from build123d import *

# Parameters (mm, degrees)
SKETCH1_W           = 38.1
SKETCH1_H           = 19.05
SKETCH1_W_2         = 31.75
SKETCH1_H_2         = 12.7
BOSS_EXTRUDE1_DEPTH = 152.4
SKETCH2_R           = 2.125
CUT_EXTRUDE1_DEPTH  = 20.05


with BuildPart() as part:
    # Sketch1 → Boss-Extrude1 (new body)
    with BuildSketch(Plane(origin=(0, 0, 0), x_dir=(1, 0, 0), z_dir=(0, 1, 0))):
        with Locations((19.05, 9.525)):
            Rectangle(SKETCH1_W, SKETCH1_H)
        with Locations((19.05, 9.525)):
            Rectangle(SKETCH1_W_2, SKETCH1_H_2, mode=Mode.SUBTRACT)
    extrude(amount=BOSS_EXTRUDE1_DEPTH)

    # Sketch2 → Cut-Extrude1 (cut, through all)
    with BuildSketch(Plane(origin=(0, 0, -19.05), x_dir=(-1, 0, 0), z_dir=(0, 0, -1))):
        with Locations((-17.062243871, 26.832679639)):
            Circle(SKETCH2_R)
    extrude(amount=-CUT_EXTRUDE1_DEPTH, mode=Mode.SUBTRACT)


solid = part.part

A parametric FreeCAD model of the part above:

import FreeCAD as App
import Part
import Sketcher

V = App.Vector
Q = App.Units.Quantity


def add_polygon(sketch, points):
    """Adds a closed chain of lines whose ends are joined by coincident constraints."""
    first, n = sketch.GeometryCount, len(points)
    for a, b in zip(points, points[1:] + points[:1]):
        sketch.addGeometry(Part.LineSegment(App.Vector(*a, 0), App.Vector(*b, 0)), False)
    for i in range(n):
        sketch.addConstraint(Sketcher.Constraint("Coincident", first + i, 2, first + (i + 1) % n, 1))

doc = App.newDocument("Part")
body = doc.addObject("PartDesign::Body", "Body")

sketch1 = doc.addObject("Sketcher::SketchObject", "Sketch")
body.addObject(sketch1)
sketch1.AttachmentSupport = (doc.XZ_Plane, [""])
sketch1.MapMode = "FlatFace"
add_polygon(sketch1, [(0, -19.05), (0, 0), (38.1, 0), (38.1, -19.05)])
add_polygon(sketch1, [(34.925, -3.175), (3.175, -3.175), (3.175, -15.875), (34.925, -15.875)])
sketch1.addConstraint(Sketcher.Constraint("Vertical", 0))
sketch1.addConstraint(Sketcher.Constraint("Horizontal", 1))
sketch1.addConstraint(Sketcher.Constraint("Vertical", 2))
sketch1.addConstraint(Sketcher.Constraint("Horizontal", 3))
sketch1.addConstraint(Sketcher.Constraint("Horizontal", 4))
sketch1.addConstraint(Sketcher.Constraint("Vertical", 5))
sketch1.addConstraint(Sketcher.Constraint("Horizontal", 6))
sketch1.addConstraint(Sketcher.Constraint("Vertical", 7))
sketch1.addConstraint(Sketcher.Constraint("Coincident", 0, 2, -1, 1))
sketch1.addConstraint(Sketcher.Constraint("DistanceX", 1, 1, 1, 2, Q("1.5 in")))
sketch1.addConstraint(Sketcher.Constraint("DistanceY", 5, 2, 5, 1, Q("0.5 in")))
sketch1.addConstraint(Sketcher.Constraint("DistanceX", 4, 2, 4, 1, Q("1.25 in")))
sketch1.addConstraint(Sketcher.Constraint("DistanceY", 0, 1, 0, 2, Q("0.75 in")))
sketch1.addConstraint(Sketcher.Constraint("DistanceX", -1, 1, 4, 2, Q("0.125 in")))
sketch1.addConstraint(Sketcher.Constraint("DistanceY", 4, 2, -1, 1, Q("0.125 in")))
pad1 = doc.addObject("PartDesign::Pad", "Pad")
body.addObject(pad1)
pad1.Profile = sketch1
pad1.Length = Q("6 in")
pad1.Reversed = True

sketch2 = doc.addObject("Sketcher::SketchObject", "Sketch001")
body.addObject(sketch2)
sketch2.AttachmentSupport = (doc.XY_Plane, [""])
sketch2.MapMode = "FlatFace"
sketch2.AttachmentOffset = App.Placement(V(0, 0, -0.75 * 25.4), App.Rotation())
sketch2.addGeometry(Part.Circle(V(17.062244, 26.83268, 0), V(0, 0, 1), 2.125), False)
sketch2.addConstraint(Sketcher.Constraint("Diameter", 0, 4.25))
sketch2.addConstraint(Sketcher.Constraint("DistanceY", -1, 1, 0, 3, 26.83268))
sketch2.addConstraint(Sketcher.Constraint("DistanceX", -1, 1, 0, 3, 17.062244))
pocket1 = doc.addObject("PartDesign::Pocket", "Pocket")
body.addObject(pocket1)
pocket1.Profile = sketch2
pocket1.Type = "ThroughAll"
pocket1.Reversed = True

doc.recompute()
